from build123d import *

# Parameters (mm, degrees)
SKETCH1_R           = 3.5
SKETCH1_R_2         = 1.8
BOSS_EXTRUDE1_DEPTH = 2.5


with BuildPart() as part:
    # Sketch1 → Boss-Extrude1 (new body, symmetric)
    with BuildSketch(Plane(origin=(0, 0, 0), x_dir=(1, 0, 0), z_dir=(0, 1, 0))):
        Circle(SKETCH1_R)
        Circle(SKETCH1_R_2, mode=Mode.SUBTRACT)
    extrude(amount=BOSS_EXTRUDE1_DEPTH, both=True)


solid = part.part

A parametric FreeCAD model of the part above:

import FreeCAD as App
import Part
import Sketcher

V = App.Vector

doc = App.newDocument("Part")
body = doc.addObject("PartDesign::Body", "Body")

# Sketch on XZ plane
sketch1 = body.newObject("Sketcher::SketchObject", "Sketch")
sketch1.AttachmentSupport = (doc.getObject("XZ_Plane"), [""])
sketch1.MapMode = "FlatFace"
sketch1.addGeometry([
    Part.Circle(V(0, 0, 0), V(0, 0, 1), 3.5),
    Part.Circle(V(0, 0, 0), V(0, 0, 1), 1.8),
], False)
sketch1.addConstraint([
    Sketcher.Constraint("Coincident", 0, 3, -1, 1),
    Sketcher.Constraint("Coincident", 1, 3, -1, 1),
    Sketcher.Constraint("Diameter", 0, 7.0),
    Sketcher.Constraint("Diameter", 1, 3.6),
])
pad1 = body.newObject("PartDesign::Pad", "Pad")
pad1.Profile = sketch1
pad1.Length = 5
pad1.Midplane = True

doc.recompute()
